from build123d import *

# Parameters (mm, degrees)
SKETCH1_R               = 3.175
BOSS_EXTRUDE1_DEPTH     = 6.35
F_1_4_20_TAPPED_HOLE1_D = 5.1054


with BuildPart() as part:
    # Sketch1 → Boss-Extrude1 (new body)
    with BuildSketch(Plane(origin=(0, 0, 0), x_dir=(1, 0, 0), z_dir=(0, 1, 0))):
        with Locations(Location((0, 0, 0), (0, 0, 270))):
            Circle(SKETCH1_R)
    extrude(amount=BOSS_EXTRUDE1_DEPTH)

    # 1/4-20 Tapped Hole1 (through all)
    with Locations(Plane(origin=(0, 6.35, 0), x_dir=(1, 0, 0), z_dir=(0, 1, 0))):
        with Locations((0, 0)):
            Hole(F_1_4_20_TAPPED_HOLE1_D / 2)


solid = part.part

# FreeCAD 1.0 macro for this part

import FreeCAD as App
import Part
import Sketcher
Q = App.Units.Quantity

doc = App.newDocument("Part")
params = doc.addObject("Spreadsheet::Sheet", "Params")
for row, (alias, value) in enumerate([
    ("sketch1_diameter", "0.25 in"),
    ("pad1_length", "0.25 in"),
    ("sketch2_diameter", "0.201 in"),
    ("hole_diameter", "0.201 in"),
], start=1):
    params.set(f"A{row}", alias)
    params.set(f"B{row}", "=" + value)
    params.setAlias(f"B{row}", alias)

body = doc.addObject("PartDesign::Body", "Body")

# Sketch on XZ plane
sketch1 = body.newObject("Sketcher::SketchObject", "Sketch")
sketch1.AttachmentSupport = (doc.getObject("XZ_Plane"), [""])
sketch1.MapMode = "FlatFace"
sketch1.addGeometry(Part.Circle(App.Vector(0, 0, 0), App.Vector(0, 0, 1), 3.2), False)
sketch1.addConstraint(Sketcher.Constraint("Coincident", 0, 3, -1, 1))
sketch1.addConstraint(Sketcher.Constraint("Diameter", 0, Q("0.25 in")))
sketch1.setExpression("Constraints[1]", "Params.sketch1_diameter")
pad1 = body.newObject("PartDesign::Pad", "Pad")
pad1.Profile = sketch1
pad1.setExpression("Length", "Params.pad1_length")
pad1.Reversed = True

# Sketch on XZ plane
sketch2 = body.newObject("Sketcher::SketchObject", "Sketch001")
sketch2.AttachmentSupport = (doc.getObject("XZ_Plane"), [""])
sketch2.MapMode = "FlatFace"
sketch2.AttachmentOffset = App.Placement(App.Vector(0, 0, -0.25 * 25.4), App.Rotation())
sketch2.addGeometry(Part.Circle(App.Vector(0, 0, 0), App.Vector(0, 0, 1), 2.6), False)
sketch2.addConstraint(Sketcher.Constraint("Coincident", 0, 3, -1, 1))
sketch2.addConstraint(Sketcher.Constraint("Diameter", 0, Q("0.201 in")))
sketch2.setExpression("Constraints[1]", "Params.sketch2_diameter")
doc.recompute()
hole = body.newObject("PartDesign::Hole", "Hole")
hole.Profile = sketch2
hole.ThreadType = "None"
hole.setExpression("Diameter", "Params.hole_diameter")
hole.DepthType = "ThroughAll"
hole.Reversed = True

doc.recompute()
